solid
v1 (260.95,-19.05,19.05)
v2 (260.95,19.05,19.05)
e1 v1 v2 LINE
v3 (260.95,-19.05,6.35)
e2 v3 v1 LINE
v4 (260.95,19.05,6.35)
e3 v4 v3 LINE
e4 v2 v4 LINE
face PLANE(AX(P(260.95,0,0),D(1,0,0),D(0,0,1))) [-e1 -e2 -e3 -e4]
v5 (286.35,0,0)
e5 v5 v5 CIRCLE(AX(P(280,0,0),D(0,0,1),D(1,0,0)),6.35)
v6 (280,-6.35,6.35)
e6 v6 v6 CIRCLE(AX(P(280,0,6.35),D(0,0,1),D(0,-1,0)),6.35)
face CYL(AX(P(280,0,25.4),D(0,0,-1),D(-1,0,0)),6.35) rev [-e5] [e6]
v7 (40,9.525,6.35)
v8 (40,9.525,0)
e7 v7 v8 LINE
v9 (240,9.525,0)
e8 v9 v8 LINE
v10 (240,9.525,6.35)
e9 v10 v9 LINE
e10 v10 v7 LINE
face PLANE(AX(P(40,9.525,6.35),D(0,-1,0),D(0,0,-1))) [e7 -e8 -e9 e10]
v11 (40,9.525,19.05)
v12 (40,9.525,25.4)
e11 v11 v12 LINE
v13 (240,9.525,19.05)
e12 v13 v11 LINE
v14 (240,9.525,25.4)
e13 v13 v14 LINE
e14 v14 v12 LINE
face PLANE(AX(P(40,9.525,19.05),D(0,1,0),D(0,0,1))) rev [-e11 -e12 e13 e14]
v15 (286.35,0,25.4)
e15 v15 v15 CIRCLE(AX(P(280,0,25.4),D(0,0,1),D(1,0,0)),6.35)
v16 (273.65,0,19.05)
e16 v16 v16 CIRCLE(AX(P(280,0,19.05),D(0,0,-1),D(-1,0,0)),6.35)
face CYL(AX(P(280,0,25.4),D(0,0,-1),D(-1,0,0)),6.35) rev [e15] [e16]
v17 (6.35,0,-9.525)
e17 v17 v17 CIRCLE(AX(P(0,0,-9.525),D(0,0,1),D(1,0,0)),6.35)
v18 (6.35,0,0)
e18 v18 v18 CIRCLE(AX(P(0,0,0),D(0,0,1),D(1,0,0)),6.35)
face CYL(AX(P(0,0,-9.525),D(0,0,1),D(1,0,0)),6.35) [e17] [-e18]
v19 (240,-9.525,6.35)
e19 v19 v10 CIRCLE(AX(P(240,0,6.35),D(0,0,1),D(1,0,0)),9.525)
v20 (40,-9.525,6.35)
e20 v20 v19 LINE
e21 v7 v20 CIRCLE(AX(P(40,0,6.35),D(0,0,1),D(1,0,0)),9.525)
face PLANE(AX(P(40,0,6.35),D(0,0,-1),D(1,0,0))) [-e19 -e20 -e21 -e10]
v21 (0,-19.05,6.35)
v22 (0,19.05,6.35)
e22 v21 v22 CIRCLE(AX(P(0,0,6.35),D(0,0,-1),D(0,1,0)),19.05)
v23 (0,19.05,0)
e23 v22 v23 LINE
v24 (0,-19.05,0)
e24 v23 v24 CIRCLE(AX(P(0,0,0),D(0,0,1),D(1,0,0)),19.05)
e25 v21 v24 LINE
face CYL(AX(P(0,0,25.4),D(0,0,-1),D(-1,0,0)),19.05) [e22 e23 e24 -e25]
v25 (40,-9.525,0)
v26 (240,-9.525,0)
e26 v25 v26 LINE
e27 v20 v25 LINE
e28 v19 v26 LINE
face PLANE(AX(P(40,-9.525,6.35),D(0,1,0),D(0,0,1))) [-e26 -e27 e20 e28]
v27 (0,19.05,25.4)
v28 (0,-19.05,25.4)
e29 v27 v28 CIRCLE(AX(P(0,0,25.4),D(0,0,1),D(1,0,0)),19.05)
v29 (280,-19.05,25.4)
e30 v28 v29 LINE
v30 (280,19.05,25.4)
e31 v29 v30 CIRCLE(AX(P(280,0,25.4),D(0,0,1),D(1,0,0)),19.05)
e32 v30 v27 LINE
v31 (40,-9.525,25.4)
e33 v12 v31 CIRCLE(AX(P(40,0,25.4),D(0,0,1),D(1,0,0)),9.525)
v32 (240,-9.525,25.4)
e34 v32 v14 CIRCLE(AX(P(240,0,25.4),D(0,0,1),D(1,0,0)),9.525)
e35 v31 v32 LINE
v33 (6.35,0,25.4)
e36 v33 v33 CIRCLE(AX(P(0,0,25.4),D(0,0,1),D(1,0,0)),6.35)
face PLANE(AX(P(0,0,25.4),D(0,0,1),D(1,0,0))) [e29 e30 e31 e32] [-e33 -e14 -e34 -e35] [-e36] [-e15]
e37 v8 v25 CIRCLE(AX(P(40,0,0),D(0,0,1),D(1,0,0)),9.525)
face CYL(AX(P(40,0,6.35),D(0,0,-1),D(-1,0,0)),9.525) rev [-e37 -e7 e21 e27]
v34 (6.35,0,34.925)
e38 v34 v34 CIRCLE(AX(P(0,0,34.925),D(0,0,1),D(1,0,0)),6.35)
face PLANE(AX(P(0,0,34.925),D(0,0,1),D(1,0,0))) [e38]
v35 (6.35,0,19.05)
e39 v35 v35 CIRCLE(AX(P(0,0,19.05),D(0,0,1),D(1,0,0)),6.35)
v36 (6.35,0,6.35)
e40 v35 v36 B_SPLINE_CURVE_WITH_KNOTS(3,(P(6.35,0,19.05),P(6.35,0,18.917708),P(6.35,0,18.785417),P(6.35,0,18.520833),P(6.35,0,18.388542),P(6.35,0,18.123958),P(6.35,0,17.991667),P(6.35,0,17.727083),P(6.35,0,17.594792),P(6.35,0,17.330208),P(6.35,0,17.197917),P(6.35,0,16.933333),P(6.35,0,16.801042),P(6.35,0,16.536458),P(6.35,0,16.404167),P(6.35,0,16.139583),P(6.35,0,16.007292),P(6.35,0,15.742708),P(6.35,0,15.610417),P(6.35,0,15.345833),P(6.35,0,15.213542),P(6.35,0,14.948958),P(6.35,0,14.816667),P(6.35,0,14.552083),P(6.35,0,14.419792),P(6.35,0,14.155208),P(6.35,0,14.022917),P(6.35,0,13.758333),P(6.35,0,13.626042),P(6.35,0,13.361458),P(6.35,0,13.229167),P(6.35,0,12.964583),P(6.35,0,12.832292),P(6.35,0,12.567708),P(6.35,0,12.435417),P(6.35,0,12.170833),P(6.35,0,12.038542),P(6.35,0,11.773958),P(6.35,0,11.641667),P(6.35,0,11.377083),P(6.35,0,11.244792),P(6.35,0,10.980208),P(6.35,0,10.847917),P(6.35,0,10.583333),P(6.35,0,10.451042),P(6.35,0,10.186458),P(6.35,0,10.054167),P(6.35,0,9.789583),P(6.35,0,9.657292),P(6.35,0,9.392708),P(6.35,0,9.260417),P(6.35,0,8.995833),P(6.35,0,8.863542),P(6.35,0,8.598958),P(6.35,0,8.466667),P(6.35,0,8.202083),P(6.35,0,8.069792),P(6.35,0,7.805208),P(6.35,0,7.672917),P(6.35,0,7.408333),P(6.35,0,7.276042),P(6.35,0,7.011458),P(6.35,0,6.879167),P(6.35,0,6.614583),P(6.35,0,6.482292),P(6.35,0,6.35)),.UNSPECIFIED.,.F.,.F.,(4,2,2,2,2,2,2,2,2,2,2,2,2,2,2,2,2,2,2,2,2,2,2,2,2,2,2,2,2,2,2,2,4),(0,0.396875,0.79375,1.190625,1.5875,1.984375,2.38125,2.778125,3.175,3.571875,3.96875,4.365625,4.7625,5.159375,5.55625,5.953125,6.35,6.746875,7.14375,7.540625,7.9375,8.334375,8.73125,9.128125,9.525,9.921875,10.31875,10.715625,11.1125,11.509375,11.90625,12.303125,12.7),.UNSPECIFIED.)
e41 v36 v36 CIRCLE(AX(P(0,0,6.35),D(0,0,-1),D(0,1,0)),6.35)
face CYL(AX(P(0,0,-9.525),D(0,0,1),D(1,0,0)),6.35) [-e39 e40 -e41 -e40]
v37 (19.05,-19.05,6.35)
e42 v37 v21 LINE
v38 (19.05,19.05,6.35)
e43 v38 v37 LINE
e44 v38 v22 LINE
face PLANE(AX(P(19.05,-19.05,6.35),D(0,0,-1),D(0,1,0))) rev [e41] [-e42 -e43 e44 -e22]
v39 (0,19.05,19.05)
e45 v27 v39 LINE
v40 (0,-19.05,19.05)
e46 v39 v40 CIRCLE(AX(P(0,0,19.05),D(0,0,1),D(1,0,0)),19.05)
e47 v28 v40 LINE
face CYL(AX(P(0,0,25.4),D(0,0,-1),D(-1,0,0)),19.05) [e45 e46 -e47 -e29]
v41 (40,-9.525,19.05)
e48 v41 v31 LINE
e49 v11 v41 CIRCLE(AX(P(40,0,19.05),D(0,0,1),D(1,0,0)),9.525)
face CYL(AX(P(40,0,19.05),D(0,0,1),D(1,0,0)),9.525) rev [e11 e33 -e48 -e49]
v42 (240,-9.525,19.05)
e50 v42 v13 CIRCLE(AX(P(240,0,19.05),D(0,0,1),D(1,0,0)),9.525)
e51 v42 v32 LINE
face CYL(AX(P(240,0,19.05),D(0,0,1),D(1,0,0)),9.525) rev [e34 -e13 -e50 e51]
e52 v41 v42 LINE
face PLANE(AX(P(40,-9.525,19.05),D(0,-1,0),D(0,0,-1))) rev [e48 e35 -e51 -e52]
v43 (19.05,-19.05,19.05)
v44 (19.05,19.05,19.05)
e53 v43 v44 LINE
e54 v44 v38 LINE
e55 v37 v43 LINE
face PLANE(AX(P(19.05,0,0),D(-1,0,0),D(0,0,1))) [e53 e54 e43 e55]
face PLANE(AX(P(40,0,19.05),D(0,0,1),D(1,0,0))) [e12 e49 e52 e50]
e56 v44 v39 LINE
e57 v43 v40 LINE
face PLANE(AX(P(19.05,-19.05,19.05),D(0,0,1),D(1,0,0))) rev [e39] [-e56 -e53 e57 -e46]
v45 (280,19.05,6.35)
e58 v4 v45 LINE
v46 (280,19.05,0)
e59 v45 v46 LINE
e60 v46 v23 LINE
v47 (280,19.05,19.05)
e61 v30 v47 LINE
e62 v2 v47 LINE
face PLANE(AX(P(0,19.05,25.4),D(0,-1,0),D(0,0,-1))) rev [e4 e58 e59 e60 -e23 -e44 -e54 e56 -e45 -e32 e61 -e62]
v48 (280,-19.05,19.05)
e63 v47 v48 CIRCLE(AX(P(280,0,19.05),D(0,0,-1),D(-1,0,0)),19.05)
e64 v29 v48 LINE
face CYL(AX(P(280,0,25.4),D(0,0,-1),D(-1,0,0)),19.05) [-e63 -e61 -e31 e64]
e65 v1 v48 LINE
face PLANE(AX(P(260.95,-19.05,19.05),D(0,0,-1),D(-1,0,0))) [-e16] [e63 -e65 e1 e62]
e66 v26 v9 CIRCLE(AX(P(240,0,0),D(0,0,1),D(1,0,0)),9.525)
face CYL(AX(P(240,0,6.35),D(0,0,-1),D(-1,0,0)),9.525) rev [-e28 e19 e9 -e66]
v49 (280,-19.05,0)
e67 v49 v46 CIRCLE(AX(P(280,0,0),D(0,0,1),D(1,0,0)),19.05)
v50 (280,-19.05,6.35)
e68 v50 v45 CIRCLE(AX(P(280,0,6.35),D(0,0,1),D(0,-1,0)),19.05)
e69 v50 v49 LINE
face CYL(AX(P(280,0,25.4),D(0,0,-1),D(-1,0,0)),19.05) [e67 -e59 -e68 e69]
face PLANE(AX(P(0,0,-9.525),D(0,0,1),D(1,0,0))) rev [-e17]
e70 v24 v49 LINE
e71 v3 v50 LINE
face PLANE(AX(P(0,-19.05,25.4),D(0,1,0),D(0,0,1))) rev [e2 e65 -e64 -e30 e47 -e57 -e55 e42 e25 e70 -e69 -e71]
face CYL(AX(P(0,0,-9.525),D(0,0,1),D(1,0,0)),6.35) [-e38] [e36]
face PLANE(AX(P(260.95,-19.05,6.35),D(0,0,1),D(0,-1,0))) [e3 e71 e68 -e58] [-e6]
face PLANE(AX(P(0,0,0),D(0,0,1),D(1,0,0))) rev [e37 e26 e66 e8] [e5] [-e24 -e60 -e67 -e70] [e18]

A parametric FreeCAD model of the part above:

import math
import FreeCAD as App
import Part
import Sketcher
from FreeCAD import Vector
Q = App.Units.Quantity

doc = App.newDocument("Part")
body = doc.addObject("PartDesign::Body", "Body")

# Sketch on XY plane
sketch1 = body.newObject("Sketcher::SketchObject", "Sketch")
sketch1.AttachmentSupport = (doc.getObject("XY_Plane"), [""])
sketch1.MapMode = "FlatFace"
sketch1.addGeometry([
    Part.LineSegment(Vector(280, 19, 0), Vector(0, 19, 0)),  # 0
    Part.ArcOfCircle(Part.Circle(Vector(0, 0, 0), Vector(0, 0, 1), 19), math.radians(90), math.radians(270)),  # 1
    Part.LineSegment(Vector(0, -19, 0), Vector(280, -19, 0)),  # 2
    Part.ArcOfCircle(Part.Circle(Vector(280, 0, 0), Vector(0, 0, 1), 19), math.radians(-90), math.radians(90)),  # 3
    Part.Circle(Vector(280, 0, 0), Vector(0, 0, 1), 6),  # 4
    Part.Circle(Vector(0, 0, 0), Vector(0, 0, 1), 6),  # 5
], False)
sketch1.addConstraint([
    Sketcher.Constraint("Tangent", 0, 2, 1, 1),
    Sketcher.Constraint("Tangent", 1, 2, 2, 1),
    Sketcher.Constraint("Tangent", 2, 2, 3, 1),
    Sketcher.Constraint("Tangent", 3, 2, 0, 1),
    Sketcher.Constraint("Horizontal", 0),
    Sketcher.Constraint("Horizontal", 2),
    Sketcher.Constraint("Coincident", 1, 3, -1, 1),
    Sketcher.Constraint("Coincident", 5, 3, -1, 1),
    Sketcher.Constraint("Coincident", 4, 3, 3, 3),
    Sketcher.Constraint("Equal", 4, 5),
    Sketcher.Constraint("Diameter", 4, Q("0.5 in")),
    Sketcher.Constraint("Radius", 1, Q("0.75 in")),
    Sketcher.Constraint("DistanceX", 0, 2, 0, 1, 280.0),
])
pad1 = body.newObject("PartDesign::Pad", "Pad")
pad1.Profile = sketch1
pad1.Length = Q("1 in")

# Sketch on XY plane
sketch2 = body.newObject("Sketcher::SketchObject", "Sketch001")
sketch2.AttachmentSupport = (doc.getObject("XY_Plane"), [""])
sketch2.MapMode = "FlatFace"
sketch2.AttachmentOffset = App.Placement(Vector(0, 0, 1 * 25.4), App.Rotation())
sketch2.addGeometry([
    Part.LineSegment(Vector(240, 10, 0), Vector(40, 10, 0)),
    Part.ArcOfCircle(Part.Circle(Vector(40, 0, 0), Vector(0, 0, 1), 10), math.radians(90), math.radians(270)),
    Part.LineSegment(Vector(40, -10, 0), Vector(240, -10, 0)),
    Part.ArcOfCircle(Part.Circle(Vector(240, 0, 0), Vector(0, 0, 1), 10), math.radians(-90), math.radians(90)),
], False)
sketch2.addConstraint([
    Sketcher.Constraint("Tangent", 0, 2, 1, 1),
    Sketcher.Constraint("Tangent", 1, 2, 2, 1),
    Sketcher.Constraint("Tangent", 2, 2, 3, 1),
    Sketcher.Constraint("Tangent", 3, 2, 0, 1),
    Sketcher.Constraint("Horizontal", 0),
    Sketcher.Constraint("Horizontal", 2),
    Sketcher.Constraint("PointOnObject", 1, 3, -1),
    Sketcher.Constraint("Radius", 1, Q("0.375 in")),
    Sketcher.Constraint("DistanceX", 0, 2, 0, 1, 200.0),
    Sketcher.Constraint("DistanceX", -1, 1, 1, 3, 40.0),
])
pocket1 = body.newObject("PartDesign::Pocket", "Pocket")
pocket1.Profile = sketch2
pocket1.Length = Q("0.25 in")
doc.recompute()

datumplane = body.newObject("PartDesign::Plane", "DatumPlane")
datumplane.AttachmentSupport = (doc.getObject("XY_Plane"), [""])
datumplane.MapMode = "FlatFace"
datumplane.AttachmentOffset = App.Placement(Vector(0, 0, 0.5 * 25.4), App.Rotation())
mirrored = body.newObject("PartDesign::Mirrored", "Mirrored")
mirrored.Originals = [pocket1]
mirrored.MirrorPlane = (datumplane, [""])
body.Tip = mirrored

# Sketch on YZ plane
sketch3 = body.newObject("Sketcher::SketchObject", "Sketch002")
sketch3.AttachmentSupport = (doc.getObject("YZ_Plane"), [""])
sketch3.MapMode = "FlatFace"
sketch3.AttachmentOffset = App.Placement(Vector(0, 0, -0.75 * 25.4), App.Rotation())
sketch3.addGeometry([
    Part.LineSegment(Vector(19, 6, 0), Vector(-19, 6, 0)),
    Part.LineSegment(Vector(-19, 6, 0), Vector(-19, 19, 0)),
    Part.LineSegment(Vector(-19, 19, 0), Vector(19, 19, 0)),
    Part.LineSegment(Vector(19, 19, 0), Vector(19, 6, 0)),
], False)
sketch3.addConstraint([
    Sketcher.Constraint("Coincident", 0, 2, 1, 1),
    Sketcher.Constraint("Coincident", 1, 2, 2, 1),
    Sketcher.Constraint("Coincident", 2, 2, 3, 1),
    Sketcher.Constraint("Coincident", 3, 2, 0, 1),
    Sketcher.Constraint("Horizontal", 0),
    Sketcher.Constraint("Vertical", 1),
    Sketcher.Constraint("Horizontal", 2),
    Sketcher.Constraint("Vertical", 3),
    Sketcher.Constraint("DistanceX", 0, 2, 0, 1, Q("1.5 in")),
    Sketcher.Constraint("DistanceY", 1, 1, 1, 2, Q("0.5 in")),
    Sketcher.Constraint("DistanceX", 0, 2, -1, 1, Q("0.75 in")),
    Sketcher.Constraint("DistanceY", -1, 1, 0, 2, Q("0.25 in")),
])
pocket2 = body.newObject("PartDesign::Pocket", "Pocket001")
pocket2.Profile = sketch3
pocket2.Length = Q("1.5 in")
pocket2.Reversed = True
doc.recompute()

datumplane2 = body.newObject("PartDesign::Plane", "DatumPlane001")
datumplane2.AttachmentSupport = (doc.getObject("YZ_Plane"), [""])
datumplane2.MapMode = "FlatFace"
datumplane2.AttachmentOffset = App.Placement(Vector(0, 0, 140), App.Rotation())
mirrored2 = body.newObject("PartDesign::Mirrored", "Mirrored001")
mirrored2.Originals = [pocket2]
mirrored2.MirrorPlane = (datumplane2, [""])
body.Tip = mirrored2

# Sketch on XY plane
sketch4 = body.newObject("Sketcher::SketchObject", "Sketch003")
sketch4.AttachmentSupport = (doc.getObject("XY_Plane"), [""])
sketch4.MapMode = "FlatFace"
sketch4.AttachmentOffset = App.Placement(Vector(0, 0, 1 * 25.4), App.Rotation())
sketch4.addGeometry(Part.Circle(Vector(0, 0, 0), Vector(0, 0, 1), 6), False)
sketch4.addConstraint([
    Sketcher.Constraint("Coincident", 0, 3, -1, 1),
    Sketcher.Constraint("Diameter", 0, Q("0.5 in")),
])
pad2 = body.newObject("PartDesign::Pad", "Pad001")
pad2.Profile = sketch4
pad2.Type = "TwoLengths"
pad2.Length = Q("0.375 in")
pad2.Length2 = Q("1.375 in")

doc.recompute()
